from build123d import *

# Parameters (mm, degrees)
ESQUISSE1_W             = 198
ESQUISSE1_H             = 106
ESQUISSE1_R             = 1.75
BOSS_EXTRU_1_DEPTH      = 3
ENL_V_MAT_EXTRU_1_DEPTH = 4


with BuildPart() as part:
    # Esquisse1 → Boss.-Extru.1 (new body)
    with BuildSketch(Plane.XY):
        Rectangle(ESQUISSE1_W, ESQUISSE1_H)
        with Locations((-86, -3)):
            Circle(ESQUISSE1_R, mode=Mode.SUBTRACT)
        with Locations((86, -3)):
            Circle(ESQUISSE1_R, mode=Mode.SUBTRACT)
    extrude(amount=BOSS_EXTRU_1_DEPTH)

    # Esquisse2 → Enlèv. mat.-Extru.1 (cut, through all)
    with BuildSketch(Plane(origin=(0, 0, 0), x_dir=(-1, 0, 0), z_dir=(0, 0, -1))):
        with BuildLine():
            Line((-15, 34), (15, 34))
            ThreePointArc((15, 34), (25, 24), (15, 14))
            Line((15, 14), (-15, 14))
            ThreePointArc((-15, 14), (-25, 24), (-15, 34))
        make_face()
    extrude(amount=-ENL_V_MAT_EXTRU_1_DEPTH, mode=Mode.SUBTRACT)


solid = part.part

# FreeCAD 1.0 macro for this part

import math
import FreeCAD as App
import Part
import Sketcher
from FreeCAD import Vector
Q = App.Units.Quantity

doc = App.newDocument("Part")
body = doc.addObject("PartDesign::Body", "Body")

# Sketch on XY plane
sketch1 = body.newObject("Sketcher::SketchObject", "Sketch")
sketch1.AttachmentSupport = (doc.getObject("XY_Plane"), [""])
sketch1.MapMode = "FlatFace"
sketch1.addGeometry([
    Part.LineSegment(Vector(-99, 53, 0), Vector(-99, -53, 0)),  # 0
    Part.LineSegment(Vector(-99, -53, 0), Vector(99, -53, 0)),  # 1
    Part.LineSegment(Vector(99, -53, 0), Vector(99, 53, 0)),  # 2
    Part.LineSegment(Vector(99, 53, 0), Vector(-99, 53, 0)),  # 3
    Part.Circle(Vector(-86, -3, 0), Vector(0, 0, 1), 1.8),  # 4
    Part.Circle(Vector(86, -3, 0), Vector(0, 0, 1), 1.8),  # 5
], False)
sketch1.addConstraint([
    Sketcher.Constraint("Coincident", 0, 2, 1, 1),
    Sketcher.Constraint("Coincident", 1, 2, 2, 1),
    Sketcher.Constraint("Coincident", 2, 2, 3, 1),
    Sketcher.Constraint("Coincident", 3, 2, 0, 1),
    Sketcher.Constraint("Vertical", 0),
    Sketcher.Constraint("Horizontal", 1),
    Sketcher.Constraint("Vertical", 2),
    Sketcher.Constraint("Horizontal", 3),
    Sketcher.Constraint("Equal", 4, 5),
    Sketcher.Constraint("Symmetric", 0, 2, 2, 2, -1, 1),
    Sketcher.Constraint("Symmetric", 4, 3, 5, 3, -2),
    Sketcher.Constraint("Diameter", 4, Q("3.5 mm")),
    Sketcher.Constraint("DistanceX", 1, 1, 1, 2, Q("198 mm")),
    Sketcher.Constraint("DistanceY", 0, 2, 0, 1, Q("106 mm")),
    Sketcher.Constraint("DistanceX", 4, 3, -1, 1, Q("86 mm")),
    Sketcher.Constraint("DistanceY", 4, 3, -1, 1, Q("3 mm")),
])
pad1 = body.newObject("PartDesign::Pad", "Pad")
pad1.Profile = sketch1
pad1.Length = 3

# Sketch on XY plane
sketch2 = body.newObject("Sketcher::SketchObject", "Sketch001")
sketch2.AttachmentSupport = (doc.getObject("XY_Plane"), [""])
sketch2.MapMode = "FlatFace"
sketch2.addGeometry([
    Part.LineSegment(Vector(-15, 34, 0), Vector(15, 34, 0)),
    Part.ArcOfCircle(Part.Circle(Vector(15, 24, 0), Vector(0, 0, 1), 10), math.radians(-90), math.radians(90)),
    Part.LineSegment(Vector(15, 14, 0), Vector(-15, 14, 0)),
    Part.ArcOfCircle(Part.Circle(Vector(-15, 24, 0), Vector(0, 0, 1), 10), math.radians(90), math.radians(270)),
], False)
sketch2.addConstraint([
    Sketcher.Constraint("Tangent", 0, 2, 1, 2),
    Sketcher.Constraint("Tangent", 1, 1, 2, 1),
    Sketcher.Constraint("Tangent", 2, 2, 3, 2),
    Sketcher.Constraint("Tangent", 3, 1, 0, 1),
    Sketcher.Constraint("Horizontal", 0),
    Sketcher.Constraint("Horizontal", 2),
    Sketcher.Constraint("Radius", 1, Q("10 mm")),
    Sketcher.Constraint("DistanceX", 0, 1, 0, 2, Q("30 mm")),
    Sketcher.Constraint("DistanceX", -1, 1, 1, 3, Q("15 mm")),
    Sketcher.Constraint("DistanceY", -1, 1, 1, 3, Q("24 mm")),
])
pocket1 = body.newObject("PartDesign::Pocket", "Pocket")
pocket1.Profile = sketch2
pocket1.Type = "ThroughAll"
pocket1.Reversed = True

doc.recompute()
